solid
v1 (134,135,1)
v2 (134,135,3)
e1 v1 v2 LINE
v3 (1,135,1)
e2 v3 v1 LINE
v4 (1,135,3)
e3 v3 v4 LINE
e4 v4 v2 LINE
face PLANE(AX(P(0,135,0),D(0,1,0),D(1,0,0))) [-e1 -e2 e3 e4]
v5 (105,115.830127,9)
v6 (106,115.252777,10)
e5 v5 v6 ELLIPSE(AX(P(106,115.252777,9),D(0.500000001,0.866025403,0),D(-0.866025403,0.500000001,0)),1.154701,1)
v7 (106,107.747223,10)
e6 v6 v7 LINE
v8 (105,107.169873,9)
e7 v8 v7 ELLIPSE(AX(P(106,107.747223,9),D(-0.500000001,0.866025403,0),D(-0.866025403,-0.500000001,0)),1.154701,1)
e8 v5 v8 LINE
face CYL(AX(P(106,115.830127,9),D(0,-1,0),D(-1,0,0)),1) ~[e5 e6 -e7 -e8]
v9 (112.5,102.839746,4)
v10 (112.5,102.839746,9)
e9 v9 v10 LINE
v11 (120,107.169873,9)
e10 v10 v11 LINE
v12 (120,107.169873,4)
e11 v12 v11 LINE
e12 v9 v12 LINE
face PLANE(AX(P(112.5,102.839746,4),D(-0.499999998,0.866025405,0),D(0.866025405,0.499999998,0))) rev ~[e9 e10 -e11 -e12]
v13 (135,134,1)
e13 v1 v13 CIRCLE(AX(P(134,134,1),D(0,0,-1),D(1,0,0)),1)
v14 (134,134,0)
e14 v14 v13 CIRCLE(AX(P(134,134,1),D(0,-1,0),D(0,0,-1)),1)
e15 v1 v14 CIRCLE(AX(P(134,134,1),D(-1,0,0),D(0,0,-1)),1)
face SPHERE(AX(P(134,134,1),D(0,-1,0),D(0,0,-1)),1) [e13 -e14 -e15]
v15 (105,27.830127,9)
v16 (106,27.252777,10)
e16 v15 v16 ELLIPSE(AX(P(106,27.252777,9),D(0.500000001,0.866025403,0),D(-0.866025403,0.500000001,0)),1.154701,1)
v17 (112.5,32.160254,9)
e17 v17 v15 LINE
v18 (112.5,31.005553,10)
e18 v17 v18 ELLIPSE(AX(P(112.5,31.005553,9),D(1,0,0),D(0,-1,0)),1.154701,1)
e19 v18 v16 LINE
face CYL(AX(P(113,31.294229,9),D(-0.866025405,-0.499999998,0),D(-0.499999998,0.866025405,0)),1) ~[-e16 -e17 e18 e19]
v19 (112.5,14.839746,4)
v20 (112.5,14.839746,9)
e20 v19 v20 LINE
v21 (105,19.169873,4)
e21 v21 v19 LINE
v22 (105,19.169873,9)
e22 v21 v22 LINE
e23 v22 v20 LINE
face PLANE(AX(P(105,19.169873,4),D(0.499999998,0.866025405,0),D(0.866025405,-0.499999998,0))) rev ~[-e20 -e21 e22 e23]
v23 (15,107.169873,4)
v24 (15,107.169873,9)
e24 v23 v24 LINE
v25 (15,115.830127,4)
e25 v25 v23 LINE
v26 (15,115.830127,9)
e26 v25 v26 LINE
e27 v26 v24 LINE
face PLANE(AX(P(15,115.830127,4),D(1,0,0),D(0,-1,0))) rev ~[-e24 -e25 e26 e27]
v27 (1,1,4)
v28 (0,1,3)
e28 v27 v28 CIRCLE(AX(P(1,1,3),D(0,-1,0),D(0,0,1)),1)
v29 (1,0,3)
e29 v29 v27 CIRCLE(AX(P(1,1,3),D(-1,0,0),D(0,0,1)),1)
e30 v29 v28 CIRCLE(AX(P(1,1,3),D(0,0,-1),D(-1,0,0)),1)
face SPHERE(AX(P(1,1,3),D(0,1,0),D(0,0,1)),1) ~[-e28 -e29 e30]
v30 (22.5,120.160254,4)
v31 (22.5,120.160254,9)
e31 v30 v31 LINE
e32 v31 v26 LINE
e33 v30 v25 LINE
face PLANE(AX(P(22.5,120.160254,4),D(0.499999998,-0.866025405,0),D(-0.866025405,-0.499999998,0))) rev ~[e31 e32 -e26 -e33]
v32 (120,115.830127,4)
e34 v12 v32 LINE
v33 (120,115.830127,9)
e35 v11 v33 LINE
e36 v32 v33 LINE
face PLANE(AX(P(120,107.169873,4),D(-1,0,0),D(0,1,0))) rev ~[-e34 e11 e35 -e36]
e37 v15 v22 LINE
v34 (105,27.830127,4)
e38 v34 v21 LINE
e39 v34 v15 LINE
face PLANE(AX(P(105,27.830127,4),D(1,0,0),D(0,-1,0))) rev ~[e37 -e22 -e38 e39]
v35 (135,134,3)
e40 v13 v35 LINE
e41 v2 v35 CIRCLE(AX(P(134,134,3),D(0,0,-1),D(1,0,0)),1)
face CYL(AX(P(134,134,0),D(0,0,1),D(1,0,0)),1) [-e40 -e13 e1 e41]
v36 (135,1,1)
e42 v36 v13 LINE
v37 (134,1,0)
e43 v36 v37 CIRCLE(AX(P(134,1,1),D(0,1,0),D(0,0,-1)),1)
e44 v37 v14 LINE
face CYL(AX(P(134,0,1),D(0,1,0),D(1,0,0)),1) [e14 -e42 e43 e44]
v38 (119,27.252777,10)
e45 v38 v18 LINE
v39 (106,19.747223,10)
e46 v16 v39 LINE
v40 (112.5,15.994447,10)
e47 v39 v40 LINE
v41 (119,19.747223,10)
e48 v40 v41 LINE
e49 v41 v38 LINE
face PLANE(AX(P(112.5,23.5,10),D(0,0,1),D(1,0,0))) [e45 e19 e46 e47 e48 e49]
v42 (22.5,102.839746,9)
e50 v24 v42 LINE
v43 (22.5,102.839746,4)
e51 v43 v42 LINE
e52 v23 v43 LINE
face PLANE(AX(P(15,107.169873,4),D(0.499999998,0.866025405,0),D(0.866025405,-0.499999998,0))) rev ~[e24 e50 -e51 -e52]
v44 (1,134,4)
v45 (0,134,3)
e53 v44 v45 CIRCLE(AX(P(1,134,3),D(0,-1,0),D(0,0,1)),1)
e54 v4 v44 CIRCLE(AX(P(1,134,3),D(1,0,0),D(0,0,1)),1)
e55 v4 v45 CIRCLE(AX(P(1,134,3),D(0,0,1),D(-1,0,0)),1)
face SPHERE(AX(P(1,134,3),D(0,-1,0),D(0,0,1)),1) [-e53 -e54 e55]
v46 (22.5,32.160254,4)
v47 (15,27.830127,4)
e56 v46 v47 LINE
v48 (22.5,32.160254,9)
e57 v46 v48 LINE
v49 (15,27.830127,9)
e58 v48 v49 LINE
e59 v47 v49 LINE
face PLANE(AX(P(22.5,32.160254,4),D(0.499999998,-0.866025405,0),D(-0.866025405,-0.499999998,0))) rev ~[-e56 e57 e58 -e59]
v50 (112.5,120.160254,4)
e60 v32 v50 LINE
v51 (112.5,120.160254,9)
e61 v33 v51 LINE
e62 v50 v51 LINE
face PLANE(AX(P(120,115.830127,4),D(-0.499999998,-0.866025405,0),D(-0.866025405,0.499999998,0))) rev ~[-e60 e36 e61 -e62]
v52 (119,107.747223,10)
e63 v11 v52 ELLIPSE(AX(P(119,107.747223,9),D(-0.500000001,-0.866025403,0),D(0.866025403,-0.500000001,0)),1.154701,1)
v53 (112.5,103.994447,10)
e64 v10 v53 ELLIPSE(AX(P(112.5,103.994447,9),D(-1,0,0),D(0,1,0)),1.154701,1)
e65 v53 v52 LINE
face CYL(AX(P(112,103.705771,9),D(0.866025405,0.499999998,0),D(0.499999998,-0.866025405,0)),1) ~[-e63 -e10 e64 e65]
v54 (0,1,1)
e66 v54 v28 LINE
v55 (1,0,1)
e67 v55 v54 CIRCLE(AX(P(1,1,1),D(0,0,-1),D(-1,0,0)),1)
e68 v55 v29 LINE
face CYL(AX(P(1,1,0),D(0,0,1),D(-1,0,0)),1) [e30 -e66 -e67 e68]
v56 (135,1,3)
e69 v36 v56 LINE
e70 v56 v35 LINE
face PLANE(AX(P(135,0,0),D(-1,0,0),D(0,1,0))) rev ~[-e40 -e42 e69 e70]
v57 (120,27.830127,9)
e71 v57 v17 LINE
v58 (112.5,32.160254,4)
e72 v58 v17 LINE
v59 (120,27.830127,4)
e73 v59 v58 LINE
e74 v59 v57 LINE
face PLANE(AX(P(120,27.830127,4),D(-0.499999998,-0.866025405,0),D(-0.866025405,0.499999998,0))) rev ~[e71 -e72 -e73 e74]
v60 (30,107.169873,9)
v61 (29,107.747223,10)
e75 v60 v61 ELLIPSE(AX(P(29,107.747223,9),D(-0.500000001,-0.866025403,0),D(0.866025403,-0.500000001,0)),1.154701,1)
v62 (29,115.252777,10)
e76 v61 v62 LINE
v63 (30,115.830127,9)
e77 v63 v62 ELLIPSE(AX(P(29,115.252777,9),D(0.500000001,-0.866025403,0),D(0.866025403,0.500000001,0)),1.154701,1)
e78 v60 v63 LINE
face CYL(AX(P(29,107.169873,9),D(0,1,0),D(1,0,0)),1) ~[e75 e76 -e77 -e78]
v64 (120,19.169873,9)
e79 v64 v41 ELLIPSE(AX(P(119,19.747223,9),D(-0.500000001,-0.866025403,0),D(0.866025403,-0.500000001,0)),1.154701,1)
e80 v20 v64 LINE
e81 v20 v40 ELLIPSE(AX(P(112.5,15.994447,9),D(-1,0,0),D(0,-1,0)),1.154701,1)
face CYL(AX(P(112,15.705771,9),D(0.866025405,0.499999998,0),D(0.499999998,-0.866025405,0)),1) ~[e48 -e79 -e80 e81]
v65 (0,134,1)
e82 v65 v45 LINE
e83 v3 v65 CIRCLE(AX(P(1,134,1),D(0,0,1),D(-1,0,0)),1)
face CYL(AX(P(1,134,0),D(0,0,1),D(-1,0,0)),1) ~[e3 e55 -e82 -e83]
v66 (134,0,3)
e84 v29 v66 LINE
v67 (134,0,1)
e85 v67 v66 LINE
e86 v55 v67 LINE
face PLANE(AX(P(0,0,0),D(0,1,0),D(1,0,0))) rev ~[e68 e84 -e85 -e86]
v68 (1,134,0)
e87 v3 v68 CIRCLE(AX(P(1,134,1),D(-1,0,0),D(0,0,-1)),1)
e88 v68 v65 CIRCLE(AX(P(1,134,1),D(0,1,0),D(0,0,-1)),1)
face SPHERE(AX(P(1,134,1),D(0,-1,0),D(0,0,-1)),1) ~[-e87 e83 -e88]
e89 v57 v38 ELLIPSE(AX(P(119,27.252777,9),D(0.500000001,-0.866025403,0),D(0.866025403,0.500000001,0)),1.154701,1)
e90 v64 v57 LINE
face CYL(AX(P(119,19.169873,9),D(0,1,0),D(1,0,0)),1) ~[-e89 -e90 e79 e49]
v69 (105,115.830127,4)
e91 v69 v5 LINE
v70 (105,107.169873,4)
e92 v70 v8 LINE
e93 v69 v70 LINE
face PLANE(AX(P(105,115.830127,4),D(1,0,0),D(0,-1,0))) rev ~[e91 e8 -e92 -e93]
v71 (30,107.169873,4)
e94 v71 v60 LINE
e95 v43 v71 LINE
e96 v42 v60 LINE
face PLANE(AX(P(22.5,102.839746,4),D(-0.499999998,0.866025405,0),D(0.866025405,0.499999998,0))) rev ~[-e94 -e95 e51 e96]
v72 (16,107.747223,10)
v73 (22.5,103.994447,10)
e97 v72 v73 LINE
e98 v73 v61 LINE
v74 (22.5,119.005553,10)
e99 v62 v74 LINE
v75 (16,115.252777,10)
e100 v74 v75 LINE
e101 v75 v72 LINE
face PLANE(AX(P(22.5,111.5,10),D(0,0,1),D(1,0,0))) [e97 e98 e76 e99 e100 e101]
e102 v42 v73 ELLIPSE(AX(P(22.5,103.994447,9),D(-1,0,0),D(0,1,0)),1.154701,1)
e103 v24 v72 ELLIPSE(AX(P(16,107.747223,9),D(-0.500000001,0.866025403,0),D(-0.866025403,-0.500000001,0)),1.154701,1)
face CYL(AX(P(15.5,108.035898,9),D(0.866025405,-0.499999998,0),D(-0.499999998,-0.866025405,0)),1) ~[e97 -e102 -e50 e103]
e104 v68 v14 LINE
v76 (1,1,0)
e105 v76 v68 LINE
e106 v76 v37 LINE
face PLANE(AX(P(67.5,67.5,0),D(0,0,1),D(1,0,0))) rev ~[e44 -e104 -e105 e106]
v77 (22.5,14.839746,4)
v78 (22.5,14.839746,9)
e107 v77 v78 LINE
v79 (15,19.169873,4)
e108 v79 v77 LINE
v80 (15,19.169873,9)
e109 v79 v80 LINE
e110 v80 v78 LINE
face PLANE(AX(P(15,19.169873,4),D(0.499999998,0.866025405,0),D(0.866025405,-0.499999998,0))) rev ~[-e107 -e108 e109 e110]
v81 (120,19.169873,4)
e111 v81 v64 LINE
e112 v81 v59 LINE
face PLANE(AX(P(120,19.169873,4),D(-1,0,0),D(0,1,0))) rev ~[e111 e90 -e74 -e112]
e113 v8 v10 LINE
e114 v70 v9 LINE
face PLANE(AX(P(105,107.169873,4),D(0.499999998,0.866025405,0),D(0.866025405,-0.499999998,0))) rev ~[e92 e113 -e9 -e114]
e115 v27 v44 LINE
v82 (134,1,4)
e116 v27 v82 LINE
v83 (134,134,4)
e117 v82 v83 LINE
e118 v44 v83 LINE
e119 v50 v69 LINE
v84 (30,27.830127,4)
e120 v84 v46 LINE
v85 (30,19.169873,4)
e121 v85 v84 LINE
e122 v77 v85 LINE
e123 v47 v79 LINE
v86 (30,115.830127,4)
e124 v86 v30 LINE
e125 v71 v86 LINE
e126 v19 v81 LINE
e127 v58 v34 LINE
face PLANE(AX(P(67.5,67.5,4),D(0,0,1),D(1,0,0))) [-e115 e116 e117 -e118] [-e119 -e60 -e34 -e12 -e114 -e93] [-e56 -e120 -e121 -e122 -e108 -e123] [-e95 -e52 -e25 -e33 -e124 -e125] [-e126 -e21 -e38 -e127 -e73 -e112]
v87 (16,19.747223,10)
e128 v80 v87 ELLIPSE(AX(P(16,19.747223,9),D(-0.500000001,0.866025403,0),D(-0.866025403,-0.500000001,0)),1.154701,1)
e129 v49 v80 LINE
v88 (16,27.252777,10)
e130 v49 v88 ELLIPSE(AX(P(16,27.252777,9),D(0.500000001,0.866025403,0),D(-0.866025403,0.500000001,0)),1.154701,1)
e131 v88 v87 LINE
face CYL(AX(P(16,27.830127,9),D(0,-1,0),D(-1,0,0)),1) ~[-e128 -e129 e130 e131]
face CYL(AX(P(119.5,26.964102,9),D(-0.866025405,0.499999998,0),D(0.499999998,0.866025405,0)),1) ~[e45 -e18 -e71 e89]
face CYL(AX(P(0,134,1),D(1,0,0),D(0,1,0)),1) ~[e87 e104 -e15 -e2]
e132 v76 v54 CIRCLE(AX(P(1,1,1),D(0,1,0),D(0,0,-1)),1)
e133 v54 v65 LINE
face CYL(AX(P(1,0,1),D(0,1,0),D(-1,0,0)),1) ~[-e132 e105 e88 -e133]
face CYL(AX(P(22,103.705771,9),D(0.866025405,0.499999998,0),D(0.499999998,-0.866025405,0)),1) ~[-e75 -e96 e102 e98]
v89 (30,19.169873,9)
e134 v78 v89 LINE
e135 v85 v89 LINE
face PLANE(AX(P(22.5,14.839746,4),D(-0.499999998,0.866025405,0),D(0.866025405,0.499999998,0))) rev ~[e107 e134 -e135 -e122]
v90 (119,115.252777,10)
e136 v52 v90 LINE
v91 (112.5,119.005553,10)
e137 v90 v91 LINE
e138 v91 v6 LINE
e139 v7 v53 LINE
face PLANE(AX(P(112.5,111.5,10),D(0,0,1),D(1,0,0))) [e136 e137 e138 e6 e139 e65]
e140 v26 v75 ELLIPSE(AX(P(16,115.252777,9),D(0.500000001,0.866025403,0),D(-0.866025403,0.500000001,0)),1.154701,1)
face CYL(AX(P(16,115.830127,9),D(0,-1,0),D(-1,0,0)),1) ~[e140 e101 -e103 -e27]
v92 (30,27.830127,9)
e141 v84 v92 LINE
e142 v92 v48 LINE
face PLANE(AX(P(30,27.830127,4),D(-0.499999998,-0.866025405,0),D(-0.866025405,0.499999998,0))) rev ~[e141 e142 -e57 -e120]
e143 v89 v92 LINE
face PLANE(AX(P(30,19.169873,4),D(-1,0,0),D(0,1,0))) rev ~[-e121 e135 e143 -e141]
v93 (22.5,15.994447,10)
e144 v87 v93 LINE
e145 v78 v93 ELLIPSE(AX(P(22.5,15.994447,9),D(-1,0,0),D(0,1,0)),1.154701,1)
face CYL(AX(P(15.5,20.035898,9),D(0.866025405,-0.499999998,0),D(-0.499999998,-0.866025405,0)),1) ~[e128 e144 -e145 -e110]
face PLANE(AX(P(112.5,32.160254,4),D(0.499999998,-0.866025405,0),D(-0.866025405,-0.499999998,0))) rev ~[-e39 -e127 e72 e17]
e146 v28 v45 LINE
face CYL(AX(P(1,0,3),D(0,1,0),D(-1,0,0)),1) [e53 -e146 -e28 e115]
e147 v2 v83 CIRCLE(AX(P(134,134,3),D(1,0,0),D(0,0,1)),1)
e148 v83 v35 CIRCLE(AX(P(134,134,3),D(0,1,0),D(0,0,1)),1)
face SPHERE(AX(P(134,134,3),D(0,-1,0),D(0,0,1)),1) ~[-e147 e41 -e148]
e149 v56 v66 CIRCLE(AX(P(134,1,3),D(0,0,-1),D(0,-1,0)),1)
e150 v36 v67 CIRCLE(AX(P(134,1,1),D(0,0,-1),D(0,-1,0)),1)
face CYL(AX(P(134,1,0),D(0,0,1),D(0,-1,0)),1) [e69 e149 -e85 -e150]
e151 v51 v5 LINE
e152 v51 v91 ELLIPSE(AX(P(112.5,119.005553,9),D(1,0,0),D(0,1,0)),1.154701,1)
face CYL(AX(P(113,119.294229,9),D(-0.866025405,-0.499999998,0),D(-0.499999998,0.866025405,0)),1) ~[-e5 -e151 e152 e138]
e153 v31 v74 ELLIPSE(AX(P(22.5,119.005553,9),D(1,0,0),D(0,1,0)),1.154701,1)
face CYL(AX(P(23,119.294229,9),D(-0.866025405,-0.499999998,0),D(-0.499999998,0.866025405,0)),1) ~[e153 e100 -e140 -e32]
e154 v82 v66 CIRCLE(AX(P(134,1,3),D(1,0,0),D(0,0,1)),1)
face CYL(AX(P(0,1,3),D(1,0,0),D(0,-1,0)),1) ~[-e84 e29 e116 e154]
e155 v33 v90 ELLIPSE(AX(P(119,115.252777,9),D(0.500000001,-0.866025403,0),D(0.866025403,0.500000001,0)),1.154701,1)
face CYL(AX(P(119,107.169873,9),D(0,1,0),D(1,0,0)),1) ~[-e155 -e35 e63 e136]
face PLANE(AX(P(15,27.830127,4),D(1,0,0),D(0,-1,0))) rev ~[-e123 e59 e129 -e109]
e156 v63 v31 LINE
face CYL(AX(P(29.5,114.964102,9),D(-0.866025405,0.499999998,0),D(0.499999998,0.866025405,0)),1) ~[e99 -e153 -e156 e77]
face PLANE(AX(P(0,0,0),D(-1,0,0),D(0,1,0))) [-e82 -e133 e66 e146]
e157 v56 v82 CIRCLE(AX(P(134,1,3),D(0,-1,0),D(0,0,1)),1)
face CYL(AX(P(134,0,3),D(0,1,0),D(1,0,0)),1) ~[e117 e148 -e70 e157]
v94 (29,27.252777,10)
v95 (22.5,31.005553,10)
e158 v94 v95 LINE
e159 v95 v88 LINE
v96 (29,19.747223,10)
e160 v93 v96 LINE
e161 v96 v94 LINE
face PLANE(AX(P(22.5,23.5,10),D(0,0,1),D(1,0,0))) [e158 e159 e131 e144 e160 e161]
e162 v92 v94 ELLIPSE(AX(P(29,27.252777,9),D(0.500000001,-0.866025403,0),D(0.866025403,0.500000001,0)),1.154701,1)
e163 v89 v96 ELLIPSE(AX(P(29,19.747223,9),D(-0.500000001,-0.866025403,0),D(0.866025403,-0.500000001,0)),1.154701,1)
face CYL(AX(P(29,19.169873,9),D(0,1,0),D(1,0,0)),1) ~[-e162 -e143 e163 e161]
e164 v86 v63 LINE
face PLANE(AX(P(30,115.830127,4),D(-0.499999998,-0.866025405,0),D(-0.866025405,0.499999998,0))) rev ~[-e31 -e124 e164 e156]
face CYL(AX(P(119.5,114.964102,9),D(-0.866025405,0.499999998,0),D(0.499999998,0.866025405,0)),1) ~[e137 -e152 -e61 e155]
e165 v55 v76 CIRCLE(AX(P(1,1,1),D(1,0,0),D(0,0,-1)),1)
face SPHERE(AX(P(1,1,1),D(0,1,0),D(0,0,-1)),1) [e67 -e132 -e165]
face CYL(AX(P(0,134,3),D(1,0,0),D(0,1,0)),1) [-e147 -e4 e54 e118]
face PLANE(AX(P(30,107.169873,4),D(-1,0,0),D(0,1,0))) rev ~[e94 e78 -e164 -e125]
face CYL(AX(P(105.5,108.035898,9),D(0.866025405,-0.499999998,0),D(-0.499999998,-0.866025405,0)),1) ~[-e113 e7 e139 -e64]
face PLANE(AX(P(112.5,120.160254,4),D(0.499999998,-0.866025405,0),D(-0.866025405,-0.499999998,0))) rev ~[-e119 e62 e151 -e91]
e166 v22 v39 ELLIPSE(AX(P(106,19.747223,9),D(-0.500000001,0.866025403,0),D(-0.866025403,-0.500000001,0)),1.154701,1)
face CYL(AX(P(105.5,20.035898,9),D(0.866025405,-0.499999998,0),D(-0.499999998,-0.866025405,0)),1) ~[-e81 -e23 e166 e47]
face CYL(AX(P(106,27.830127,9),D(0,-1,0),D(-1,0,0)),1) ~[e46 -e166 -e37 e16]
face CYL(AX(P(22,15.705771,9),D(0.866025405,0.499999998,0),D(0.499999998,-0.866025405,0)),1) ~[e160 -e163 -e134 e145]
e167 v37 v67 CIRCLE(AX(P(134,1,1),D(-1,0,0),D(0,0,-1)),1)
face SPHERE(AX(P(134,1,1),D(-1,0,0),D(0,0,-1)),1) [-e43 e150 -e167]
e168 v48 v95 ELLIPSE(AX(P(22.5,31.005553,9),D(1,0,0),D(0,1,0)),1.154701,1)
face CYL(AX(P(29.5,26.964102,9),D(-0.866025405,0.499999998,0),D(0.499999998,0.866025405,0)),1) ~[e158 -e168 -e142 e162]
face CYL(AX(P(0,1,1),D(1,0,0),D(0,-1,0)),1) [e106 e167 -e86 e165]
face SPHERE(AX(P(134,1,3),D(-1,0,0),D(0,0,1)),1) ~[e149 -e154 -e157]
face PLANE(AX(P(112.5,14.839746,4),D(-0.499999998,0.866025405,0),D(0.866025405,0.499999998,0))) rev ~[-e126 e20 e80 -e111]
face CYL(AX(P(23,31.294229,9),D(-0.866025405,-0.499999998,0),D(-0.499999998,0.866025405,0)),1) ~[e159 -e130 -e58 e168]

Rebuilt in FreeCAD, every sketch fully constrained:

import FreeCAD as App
import Part
import Sketcher
from FreeCAD import Vector
Q = App.Units.Quantity


def edges_at(feature, points):
    """Names of the edges that pass closest to the given points."""
    edges = feature.Shape.Edges
    near = lambda p: min(range(len(edges)), key=lambda i: edges[i].distToShape(Part.Vertex(*p))[0])
    return sorted({f"Edge{near(p) + 1}" for p in points})


def add_polygon(sketch, points):
    """Adds a closed chain of lines whose ends are joined by coincident constraints."""
    first, n = sketch.GeometryCount, len(points)
    for a, b in zip(points, points[1:] + points[:1]):
        sketch.addGeometry(Part.LineSegment(App.Vector(*a, 0), App.Vector(*b, 0)), False)
    for i in range(n):
        sketch.addConstraint(Sketcher.Constraint("Coincident", first + i, 2, first + (i + 1) % n, 1))

doc = App.newDocument("Part")
params = doc.addObject("Spreadsheet::Sheet", "Params")
for row, (alias, value) in enumerate([
    ("sketch1_width", "135 mm"),
    ("pad1_length", "4 mm"),
    ("fillet_radius", "1 mm"),
    ("pad2_length", "6 mm"),
    ("fillet2_radius", "1 mm"),
], start=1):
    params.set(f"A{row}", alias)
    params.set(f"B{row}", "=" + value)
    params.setAlias(f"B{row}", alias)

body = doc.addObject("PartDesign::Body", "Body")

# Sketch on XY plane
sketch1 = body.newObject("Sketcher::SketchObject", "Sketch")
sketch1.AttachmentSupport = (doc.getObject("XY_Plane"), [""])
sketch1.MapMode = "FlatFace"
add_polygon(sketch1, [(0, 135), (0, 0), (135, 0), (135, 135)])  # lines 0-3
sketch1.addConstraint([
    Sketcher.Constraint("Vertical", 0),
    Sketcher.Constraint("Horizontal", 1),
    Sketcher.Constraint("Vertical", 2),
    Sketcher.Constraint("Horizontal", 3),
    Sketcher.Constraint("Coincident", 0, 2, -1, 1),
    Sketcher.Constraint("Equal", 3, 0),
    Sketcher.Constraint("DistanceX", 1, 1, 1, 2, Q("135 mm")),
])
sketch1.setExpression("Constraints[10]", "Params.sketch1_width")
pad1 = body.newObject("PartDesign::Pad", "Pad")
pad1.Profile = sketch1
pad1.setExpression("Length", "Params.pad1_length")
doc.recompute()

fillet = body.newObject("PartDesign::Fillet", "Fillet")
fillet.Base = (pad1, ["Edge1"])
fillet.UseAllEdges = True
fillet.setExpression("Radius", "Params.fillet_radius")

# Sketch on XY plane
sketch2 = body.newObject("Sketcher::SketchObject", "Sketch001")
sketch2.AttachmentSupport = (doc.getObject("XY_Plane"), [""])
sketch2.MapMode = "FlatFace"
sketch2.AttachmentOffset = App.Placement(Vector(0, 0, 4), App.Rotation())
add_polygon(sketch2, [(22, 103), (30, 107), (30, 116), (22, 120), (15, 116), (15, 107)])  # lines 0-5
add_polygon(sketch2, [(120, 116), (112, 120), (105, 116), (105, 107), (112, 103), (120, 107)])  # lines 6-11
add_polygon(sketch2, [(30, 19), (30, 28), (22, 32), (15, 28), (15, 19), (22, 15)])  # lines 12-17
add_polygon(sketch2, [(105, 19), (112, 15), (120, 19), (120, 28), (112, 32), (105, 28)])  # lines 18-23
sketch2.addConstraint([
    Sketcher.Constraint("Vertical", 1),
    Sketcher.Constraint("Vertical", 4),
    Sketcher.Constraint("Vertical", 8),
    Sketcher.Constraint("Vertical", 11),
    Sketcher.Constraint("Vertical", 12),
    Sketcher.Constraint("Vertical", 15),
    Sketcher.Constraint("Vertical", 20),
    Sketcher.Constraint("Vertical", 23),
    Sketcher.Constraint("Parallel", 0, 3),
    Sketcher.Constraint("Parallel", 2, 5),
    Sketcher.Constraint("Parallel", 5, 6),
    Sketcher.Constraint("Parallel", 3, 7),
    Sketcher.Constraint("Parallel", 6, 9),
    Sketcher.Constraint("Parallel", 7, 10),
    Sketcher.Constraint("Parallel", 9, 13),
    Sketcher.Constraint("Parallel", 10, 14),
    Sketcher.Constraint("Parallel", 13, 16),
    Sketcher.Constraint("Parallel", 14, 17),
    Sketcher.Constraint("Parallel", 16, 18),
    Sketcher.Constraint("Parallel", 17, 19),
    Sketcher.Constraint("Parallel", 18, 21),
    Sketcher.Constraint("Parallel", 19, 22),
    Sketcher.Constraint("Horizontal", 1, 2, 3, 2),
    Sketcher.Constraint("Horizontal", 0, 2, 4, 2),
    Sketcher.Constraint("Horizontal", 2, 2, 6, 2),
    Sketcher.Constraint("Horizontal", 3, 2, 7, 2),
    Sketcher.Constraint("Horizontal", 4, 2, 8, 2),
    Sketcher.Constraint("Horizontal", 5, 2, 9, 2),
    Sketcher.Constraint("Horizontal", 8, 2, 10, 2),
    Sketcher.Constraint("Horizontal", 12, 2, 14, 2),
    Sketcher.Constraint("Horizontal", 15, 2, 17, 2),
    Sketcher.Constraint("Horizontal", 16, 2, 18, 2),
    Sketcher.Constraint("Horizontal", 17, 2, 19, 2),
    Sketcher.Constraint("Horizontal", 14, 2, 20, 2),
    Sketcher.Constraint("Horizontal", 13, 2, 21, 2),
    Sketcher.Constraint("Horizontal", 20, 2, 22, 2),
    Sketcher.Constraint("Vertical", 2, 2, 5, 2),
    Sketcher.Constraint("Vertical", 1, 2, 12, 2),
    Sketcher.Constraint("Vertical", 5, 2, 13, 2),
    Sketcher.Constraint("Vertical", 9, 2, 18, 2),
    Sketcher.Constraint("Equal", 11, 12),
    Sketcher.Constraint("Angle", 0, Q("30 deg")),
    Sketcher.Constraint("DistanceX", -1, 1, 0, 2, Q("30 mm")),
    Sketcher.Constraint("DistanceX", -1, 1, 3, 2, Q("15 mm")),
    Sketcher.Constraint("DistanceX", -1, 1, 7, 2, Q("105 mm")),
    Sketcher.Constraint("DistanceY", 12, 2, 1, 2, Q("88 mm")),
    Sketcher.Constraint("DistanceY", 1, 1, 1, 2, Q("8.660254 mm")),
    Sketcher.Constraint("DistanceY", -1, 1, 0, 2, Q("107.169873 mm")),
])
pad2 = body.newObject("PartDesign::Pad", "Pad001")
pad2.Profile = sketch2
pad2.setExpression("Length", "Params.pad2_length")
doc.recompute()

fillet2 = body.newObject("PartDesign::Fillet", "Fillet001")
fillet2.Base = (pad2, edges_at(pad2, [
    (26.25, 105.005, 10),
    (30, 111.5, 10),
    (26.25, 117.995, 10),
    (18.75, 117.995, 10),
    (15, 111.5, 10),
    (18.75, 105.005, 10),
    (116.25, 105.005, 10),
    (120, 111.5, 10),
    (116.25, 117.995, 10),
    (108.75, 117.995, 10),
    (105, 111.5, 10),
    (108.75, 105.005, 10),
    (108.75, 29.995, 10),
    (105, 23.5, 10),
    (108.75, 17.005, 10),
    (116.25, 17.005, 10),
    (120, 23.5, 10),
    (116.25, 29.995, 10),
    (26.25, 17.005, 10),
    (30, 23.5, 10),
    (26.25, 29.995, 10),
    (18.75, 29.995, 10),
    (15, 23.5, 10),
    (18.75, 17.005, 10),
]))
fillet2.setExpression("Radius", "Params.fillet2_radius")

doc.recompute()
